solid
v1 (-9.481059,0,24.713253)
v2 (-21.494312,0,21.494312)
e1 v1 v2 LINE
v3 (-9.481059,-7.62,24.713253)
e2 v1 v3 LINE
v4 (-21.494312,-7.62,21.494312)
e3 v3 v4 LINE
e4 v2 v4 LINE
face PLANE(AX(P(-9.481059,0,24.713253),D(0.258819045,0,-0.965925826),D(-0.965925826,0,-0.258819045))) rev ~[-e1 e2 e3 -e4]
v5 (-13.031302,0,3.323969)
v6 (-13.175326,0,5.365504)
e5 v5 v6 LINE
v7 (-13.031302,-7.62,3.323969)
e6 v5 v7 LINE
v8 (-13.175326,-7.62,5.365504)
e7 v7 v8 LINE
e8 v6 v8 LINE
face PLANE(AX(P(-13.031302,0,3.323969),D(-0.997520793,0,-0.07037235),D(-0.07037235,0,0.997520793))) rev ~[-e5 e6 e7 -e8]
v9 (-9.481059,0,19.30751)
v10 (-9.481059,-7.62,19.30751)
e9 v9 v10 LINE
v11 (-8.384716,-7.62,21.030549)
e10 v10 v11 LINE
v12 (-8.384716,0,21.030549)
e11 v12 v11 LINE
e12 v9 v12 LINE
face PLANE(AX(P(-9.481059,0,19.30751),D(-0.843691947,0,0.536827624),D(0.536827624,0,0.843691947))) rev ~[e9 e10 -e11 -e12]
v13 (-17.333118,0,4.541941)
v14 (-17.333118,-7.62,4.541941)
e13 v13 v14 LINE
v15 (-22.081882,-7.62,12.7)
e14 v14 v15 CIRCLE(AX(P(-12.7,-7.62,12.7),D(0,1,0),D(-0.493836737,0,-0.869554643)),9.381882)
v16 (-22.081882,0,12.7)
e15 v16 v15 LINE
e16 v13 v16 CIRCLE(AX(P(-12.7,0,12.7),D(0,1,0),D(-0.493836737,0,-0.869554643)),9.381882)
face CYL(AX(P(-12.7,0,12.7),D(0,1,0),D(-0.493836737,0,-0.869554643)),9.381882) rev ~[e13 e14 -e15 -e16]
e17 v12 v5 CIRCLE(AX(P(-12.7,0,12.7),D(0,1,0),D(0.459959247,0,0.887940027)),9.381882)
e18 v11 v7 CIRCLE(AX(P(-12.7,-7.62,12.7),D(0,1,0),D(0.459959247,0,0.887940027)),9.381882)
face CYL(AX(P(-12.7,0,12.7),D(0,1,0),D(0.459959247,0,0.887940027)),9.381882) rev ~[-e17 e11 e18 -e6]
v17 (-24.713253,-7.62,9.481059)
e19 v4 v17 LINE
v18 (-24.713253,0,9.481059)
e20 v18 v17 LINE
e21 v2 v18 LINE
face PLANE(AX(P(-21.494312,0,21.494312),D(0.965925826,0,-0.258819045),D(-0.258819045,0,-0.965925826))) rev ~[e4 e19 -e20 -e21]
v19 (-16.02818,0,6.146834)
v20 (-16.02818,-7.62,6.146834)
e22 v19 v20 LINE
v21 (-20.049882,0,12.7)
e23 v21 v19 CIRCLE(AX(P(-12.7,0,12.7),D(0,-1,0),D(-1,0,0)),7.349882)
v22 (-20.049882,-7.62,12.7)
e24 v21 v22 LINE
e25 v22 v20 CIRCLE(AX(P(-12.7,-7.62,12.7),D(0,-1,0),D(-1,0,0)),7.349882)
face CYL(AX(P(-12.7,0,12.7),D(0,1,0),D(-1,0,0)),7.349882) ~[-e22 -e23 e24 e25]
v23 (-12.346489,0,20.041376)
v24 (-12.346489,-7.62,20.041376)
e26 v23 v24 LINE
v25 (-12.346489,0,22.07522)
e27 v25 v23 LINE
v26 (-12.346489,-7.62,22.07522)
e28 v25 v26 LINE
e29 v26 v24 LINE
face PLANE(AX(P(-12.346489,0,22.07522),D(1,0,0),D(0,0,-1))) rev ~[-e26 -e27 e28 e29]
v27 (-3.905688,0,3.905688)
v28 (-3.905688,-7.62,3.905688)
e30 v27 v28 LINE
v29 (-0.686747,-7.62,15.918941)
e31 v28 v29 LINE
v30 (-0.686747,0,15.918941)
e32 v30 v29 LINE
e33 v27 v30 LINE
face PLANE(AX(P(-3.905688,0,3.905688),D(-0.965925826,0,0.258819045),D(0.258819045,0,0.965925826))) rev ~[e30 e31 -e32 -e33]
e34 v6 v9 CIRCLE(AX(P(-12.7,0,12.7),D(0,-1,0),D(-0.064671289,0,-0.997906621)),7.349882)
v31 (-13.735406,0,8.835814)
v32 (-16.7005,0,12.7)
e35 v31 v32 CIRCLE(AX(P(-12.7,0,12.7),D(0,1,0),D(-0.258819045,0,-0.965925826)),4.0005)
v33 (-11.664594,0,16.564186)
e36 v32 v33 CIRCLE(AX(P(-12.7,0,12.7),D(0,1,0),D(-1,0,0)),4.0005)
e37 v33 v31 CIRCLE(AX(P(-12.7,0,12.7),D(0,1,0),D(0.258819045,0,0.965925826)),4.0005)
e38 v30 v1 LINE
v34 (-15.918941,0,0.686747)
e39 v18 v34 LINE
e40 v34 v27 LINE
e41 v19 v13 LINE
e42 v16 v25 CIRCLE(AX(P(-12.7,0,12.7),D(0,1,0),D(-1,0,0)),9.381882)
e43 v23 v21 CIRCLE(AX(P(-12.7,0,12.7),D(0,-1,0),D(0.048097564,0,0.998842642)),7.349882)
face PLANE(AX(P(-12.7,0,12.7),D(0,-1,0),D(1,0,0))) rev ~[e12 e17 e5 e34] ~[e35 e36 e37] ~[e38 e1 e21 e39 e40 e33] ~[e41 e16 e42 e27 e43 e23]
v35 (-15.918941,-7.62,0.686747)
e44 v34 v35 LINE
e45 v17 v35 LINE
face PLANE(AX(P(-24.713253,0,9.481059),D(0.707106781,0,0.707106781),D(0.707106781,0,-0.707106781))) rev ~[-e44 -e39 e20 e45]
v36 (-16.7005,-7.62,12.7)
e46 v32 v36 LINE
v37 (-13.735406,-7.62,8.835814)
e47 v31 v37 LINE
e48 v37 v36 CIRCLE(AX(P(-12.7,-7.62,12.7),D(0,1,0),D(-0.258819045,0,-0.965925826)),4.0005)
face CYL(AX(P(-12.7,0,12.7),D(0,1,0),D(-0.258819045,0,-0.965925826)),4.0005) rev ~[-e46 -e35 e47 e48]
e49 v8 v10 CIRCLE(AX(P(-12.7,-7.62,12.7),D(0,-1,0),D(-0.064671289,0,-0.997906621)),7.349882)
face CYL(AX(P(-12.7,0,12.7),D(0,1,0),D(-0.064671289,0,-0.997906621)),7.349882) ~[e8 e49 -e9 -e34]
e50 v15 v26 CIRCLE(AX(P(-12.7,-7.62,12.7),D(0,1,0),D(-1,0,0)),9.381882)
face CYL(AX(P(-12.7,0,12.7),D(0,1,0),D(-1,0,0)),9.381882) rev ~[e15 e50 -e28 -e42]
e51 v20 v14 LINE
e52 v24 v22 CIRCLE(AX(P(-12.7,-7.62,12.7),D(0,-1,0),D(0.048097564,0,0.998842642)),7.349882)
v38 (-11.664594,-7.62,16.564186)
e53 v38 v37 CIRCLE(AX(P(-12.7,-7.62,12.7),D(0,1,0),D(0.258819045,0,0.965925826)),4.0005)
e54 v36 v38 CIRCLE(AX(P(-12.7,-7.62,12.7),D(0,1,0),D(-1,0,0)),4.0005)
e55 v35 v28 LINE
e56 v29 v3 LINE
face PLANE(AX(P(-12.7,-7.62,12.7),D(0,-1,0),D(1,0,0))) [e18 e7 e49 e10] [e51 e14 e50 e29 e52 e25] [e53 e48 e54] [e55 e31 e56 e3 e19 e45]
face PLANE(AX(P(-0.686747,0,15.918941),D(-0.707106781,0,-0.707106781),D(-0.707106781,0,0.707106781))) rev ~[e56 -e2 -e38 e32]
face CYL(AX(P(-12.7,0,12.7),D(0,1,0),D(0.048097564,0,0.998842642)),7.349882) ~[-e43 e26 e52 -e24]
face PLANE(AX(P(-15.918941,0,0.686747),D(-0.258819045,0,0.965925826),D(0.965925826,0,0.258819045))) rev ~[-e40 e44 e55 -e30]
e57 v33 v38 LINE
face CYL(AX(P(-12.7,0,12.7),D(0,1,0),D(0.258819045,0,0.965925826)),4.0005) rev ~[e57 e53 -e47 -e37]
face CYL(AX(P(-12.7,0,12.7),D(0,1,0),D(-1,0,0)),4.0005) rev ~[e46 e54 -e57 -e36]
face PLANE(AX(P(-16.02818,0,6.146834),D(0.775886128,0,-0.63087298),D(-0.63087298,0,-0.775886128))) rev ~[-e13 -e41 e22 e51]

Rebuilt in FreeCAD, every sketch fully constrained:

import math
import FreeCAD as App
import Part
import Sketcher
Q = App.Units.Quantity


def add_polygon(sketch, points):
    """Adds a closed chain of lines whose ends are joined by coincident constraints."""
    first, n = sketch.GeometryCount, len(points)
    for a, b in zip(points, points[1:] + points[:1]):
        sketch.addGeometry(Part.LineSegment(App.Vector(*a, 0), App.Vector(*b, 0)), False)
    for i in range(n):
        sketch.addConstraint(Sketcher.Constraint("Coincident", first + i, 2, first + (i + 1) % n, 1))

doc = App.newDocument("Part")
params = doc.addObject("Spreadsheet::Sheet", "Params")
for row, (alias, value) in enumerate([
    ("pad1_length", "0.3 in"),
    ("pocket1_length", "0.3 in"),
    ("pocket2_length", "0.3 in"),
], start=1):
    params.set(f"A{row}", alias)
    params.set(f"B{row}", "=" + value)
    params.setAlias(f"B{row}", alias)

body = doc.addObject("PartDesign::Body", "Body")

# Sketch on XZ plane
sketch1 = body.newObject("Sketcher::SketchObject", "Sketch")
sketch1.AttachmentSupport = (doc.getObject("XZ_Plane"), [""])
sketch1.MapMode = "FlatFace"
add_polygon(sketch1, [(-1, 16), (-9, 25), (-21, 21), (-25, 9), (-16, 1), (-4, 4)])  # lines 0-5
sketch1.addConstraint([
    Sketcher.Constraint("Parallel", 0, 3),
    Sketcher.Constraint("Parallel", 1, 4),
    Sketcher.Constraint("Parallel", 2, 5),
    Sketcher.Constraint("Equal", 0, 1),
    Sketcher.Constraint("Equal", 1, 2),
    Sketcher.Constraint("Equal", 2, 3),
    Sketcher.Constraint("Angle", 0, Q("135 deg")),
    Sketcher.Constraint("Angle", 1, Q("-165 deg")),
    Sketcher.Constraint("Angle", 2, Q("-105 deg")),
    Sketcher.Constraint("DistanceX", 0, 2, -1, 1, Q("9.481059 mm")),
    Sketcher.Constraint("DistanceX", 1, 2, -1, 1, Q("21.494312 mm")),
    Sketcher.Constraint("DistanceY", -1, 1, 1, 2, Q("21.494312 mm")),
])
pad1 = body.newObject("PartDesign::Pad", "Pad")
pad1.Profile = sketch1
pad1.setExpression("Length", "Params.pad1_length")

# Sketch on XZ plane
sketch2 = body.newObject("Sketcher::SketchObject", "Sketch001")
sketch2.AttachmentSupport = (doc.getObject("XZ_Plane"), [""])
sketch2.MapMode = "FlatFace"
sketch2.addGeometry([
    Part.ArcOfCircle(Part.Circle(App.Vector(-12.7, 12.7, 0), App.Vector(0, 0, 1), 4), math.radians(-105), math.radians(75)),
    Part.ArcOfCircle(Part.Circle(App.Vector(-12.7, 12.7, 0), App.Vector(0, 0, 1), 4), math.radians(180), math.radians(255)),
    Part.ArcOfCircle(Part.Circle(App.Vector(-12.7, 12.7, 0), App.Vector(0, 0, 1), 4), math.radians(75), math.radians(180)),
], False)
sketch2.addConstraint([
    Sketcher.Constraint("Tangent", 0, 1, 1, 2),
    Sketcher.Constraint("Tangent", 1, 1, 2, 2),
    Sketcher.Constraint("Tangent", 2, 1, 0, 2),
    Sketcher.Constraint("Horizontal", 2, 3, 1, 1),
    Sketcher.Constraint("DistanceX", 0, 3, -1, 1, Q("0.5 in")),
    Sketcher.Constraint("DistanceY", -1, 1, 0, 3, Q("0.5 in")),
    Sketcher.Constraint("Radius", 0, Q("0.1575 in")),
    Sketcher.Constraint("DistanceX", 0, 1, 2, 1, Q("2.070811 mm")),
    Sketcher.Constraint("DistanceX", 0, 1, -1, 1, Q("13.735406 mm")),
])
pocket1 = body.newObject("PartDesign::Pocket", "Pocket")
pocket1.Profile = sketch2
pocket1.setExpression("Length", "Params.pocket1_length")
pocket1.Reversed = True

# Sketch on XZ plane
sketch3 = body.newObject("Sketcher::SketchObject", "Sketch002")
sketch3.AttachmentSupport = (doc.getObject("XZ_Plane"), [""])
sketch3.MapMode = "FlatFace"
sketch3.addGeometry([
    Part.LineSegment(App.Vector(-9.5, 19.3, 0), App.Vector(-8.4, 21, 0)),  # 0
    Part.ArcOfCircle(Part.Circle(App.Vector(-12.7, 12.7, 0), App.Vector(0, 0, 1), 9.4), math.radians(-92), math.radians(63)),  # 1
    Part.LineSegment(App.Vector(-13, 3.3, 0), App.Vector(-13.2, 5.4, 0)),  # 2
    Part.ArcOfCircle(Part.Circle(App.Vector(-12.7, 12.7, 0), App.Vector(0, 0, 1), 7.3), math.radians(-94), math.radians(64)),  # 3
    Part.ArcOfCircle(Part.Circle(App.Vector(-12.7, 12.7, 0), App.Vector(0, 0, 1), 9.4), math.radians(180), math.radians(240)),  # 4
    Part.ArcOfCircle(Part.Circle(App.Vector(-12.7, 12.7, 0), App.Vector(0, 0, 1), 9.4), math.radians(88), math.radians(180)),  # 5
    Part.LineSegment(App.Vector(-12.3, 22.1, 0), App.Vector(-12.3, 20, 0)),  # 6
    Part.ArcOfCircle(Part.Circle(App.Vector(-12.7, 12.7, 0), App.Vector(0, 0, 1), 7.3), math.radians(87), math.radians(180)),  # 7
    Part.ArcOfCircle(Part.Circle(App.Vector(-12.7, 12.7, 0), App.Vector(0, 0, 1), 7.3), math.radians(180), math.radians(243)),  # 8
    Part.LineSegment(App.Vector(-16, 6.1, 0), App.Vector(-17.3, 4.5, 0)),  # 9
], False)
sketch3.addConstraint([
    Sketcher.Constraint("Coincident", 0, 2, 1, 2),
    Sketcher.Constraint("Coincident", 1, 1, 2, 1),
    Sketcher.Constraint("Coincident", 2, 2, 3, 1),
    Sketcher.Constraint("Coincident", 3, 2, 0, 1),
    Sketcher.Constraint("Tangent", 4, 1, 5, 2),
    Sketcher.Constraint("Coincident", 5, 1, 6, 1),
    Sketcher.Constraint("Coincident", 6, 2, 7, 1),
    Sketcher.Constraint("Tangent", 7, 2, 8, 1),
    Sketcher.Constraint("Coincident", 8, 2, 9, 1),
    Sketcher.Constraint("Coincident", 9, 2, 4, 2),
    Sketcher.Constraint("Vertical", 6),
    Sketcher.Constraint("Coincident", 3, 3, 1, 3),
    Sketcher.Constraint("Coincident", 4, 3, 1, 3),
    Sketcher.Constraint("Coincident", 7, 3, 1, 3),
    Sketcher.Constraint("Equal", 1, 4),
    Sketcher.Constraint("Equal", 4, 5),
    Sketcher.Constraint("Equal", 3, 7),
    Sketcher.Constraint("Equal", 7, 8),
    Sketcher.Constraint("Horizontal", 8, 3, 4, 1),
    Sketcher.Constraint("Horizontal", 4, 1, 7, 2),
    Sketcher.Constraint("DistanceX", 1, 3, -1, 1, Q("0.5 in")),
    Sketcher.Constraint("DistanceY", -1, 1, 1, 3, Q("0.5 in")),
    Sketcher.Constraint("DistanceX", 4, 1, 7, 2, Q("0.08 in")),
    Sketcher.Constraint("Radius", 1, Q("9.381882 mm")),
    Sketcher.Constraint("DistanceX", 1, 1, -1, 1, Q("13.031302 mm")),
    Sketcher.Constraint("Distance", 0, Q("2.042261 mm")),
    Sketcher.Constraint("Distance", 2, Q("2.046609 mm")),
    Sketcher.Constraint("DistanceY", 6, 2, 6, 1, Q("2.033844 mm")),
    Sketcher.Constraint("DistanceY", -1, 1, 0, 2, Q("21.030549 mm")),
    Sketcher.Constraint("DistanceX", 8, 2, -1, 1, Q("16.02818 mm")),
    Sketcher.Constraint("DistanceX", 9, 2, -1, 1, Q("17.333118 mm")),
])
pocket2 = body.newObject("PartDesign::Pocket", "Pocket001")
pocket2.Profile = sketch3
pocket2.setExpression("Length", "Params.pocket2_length")
pocket2.Reversed = True

doc.recompute()
